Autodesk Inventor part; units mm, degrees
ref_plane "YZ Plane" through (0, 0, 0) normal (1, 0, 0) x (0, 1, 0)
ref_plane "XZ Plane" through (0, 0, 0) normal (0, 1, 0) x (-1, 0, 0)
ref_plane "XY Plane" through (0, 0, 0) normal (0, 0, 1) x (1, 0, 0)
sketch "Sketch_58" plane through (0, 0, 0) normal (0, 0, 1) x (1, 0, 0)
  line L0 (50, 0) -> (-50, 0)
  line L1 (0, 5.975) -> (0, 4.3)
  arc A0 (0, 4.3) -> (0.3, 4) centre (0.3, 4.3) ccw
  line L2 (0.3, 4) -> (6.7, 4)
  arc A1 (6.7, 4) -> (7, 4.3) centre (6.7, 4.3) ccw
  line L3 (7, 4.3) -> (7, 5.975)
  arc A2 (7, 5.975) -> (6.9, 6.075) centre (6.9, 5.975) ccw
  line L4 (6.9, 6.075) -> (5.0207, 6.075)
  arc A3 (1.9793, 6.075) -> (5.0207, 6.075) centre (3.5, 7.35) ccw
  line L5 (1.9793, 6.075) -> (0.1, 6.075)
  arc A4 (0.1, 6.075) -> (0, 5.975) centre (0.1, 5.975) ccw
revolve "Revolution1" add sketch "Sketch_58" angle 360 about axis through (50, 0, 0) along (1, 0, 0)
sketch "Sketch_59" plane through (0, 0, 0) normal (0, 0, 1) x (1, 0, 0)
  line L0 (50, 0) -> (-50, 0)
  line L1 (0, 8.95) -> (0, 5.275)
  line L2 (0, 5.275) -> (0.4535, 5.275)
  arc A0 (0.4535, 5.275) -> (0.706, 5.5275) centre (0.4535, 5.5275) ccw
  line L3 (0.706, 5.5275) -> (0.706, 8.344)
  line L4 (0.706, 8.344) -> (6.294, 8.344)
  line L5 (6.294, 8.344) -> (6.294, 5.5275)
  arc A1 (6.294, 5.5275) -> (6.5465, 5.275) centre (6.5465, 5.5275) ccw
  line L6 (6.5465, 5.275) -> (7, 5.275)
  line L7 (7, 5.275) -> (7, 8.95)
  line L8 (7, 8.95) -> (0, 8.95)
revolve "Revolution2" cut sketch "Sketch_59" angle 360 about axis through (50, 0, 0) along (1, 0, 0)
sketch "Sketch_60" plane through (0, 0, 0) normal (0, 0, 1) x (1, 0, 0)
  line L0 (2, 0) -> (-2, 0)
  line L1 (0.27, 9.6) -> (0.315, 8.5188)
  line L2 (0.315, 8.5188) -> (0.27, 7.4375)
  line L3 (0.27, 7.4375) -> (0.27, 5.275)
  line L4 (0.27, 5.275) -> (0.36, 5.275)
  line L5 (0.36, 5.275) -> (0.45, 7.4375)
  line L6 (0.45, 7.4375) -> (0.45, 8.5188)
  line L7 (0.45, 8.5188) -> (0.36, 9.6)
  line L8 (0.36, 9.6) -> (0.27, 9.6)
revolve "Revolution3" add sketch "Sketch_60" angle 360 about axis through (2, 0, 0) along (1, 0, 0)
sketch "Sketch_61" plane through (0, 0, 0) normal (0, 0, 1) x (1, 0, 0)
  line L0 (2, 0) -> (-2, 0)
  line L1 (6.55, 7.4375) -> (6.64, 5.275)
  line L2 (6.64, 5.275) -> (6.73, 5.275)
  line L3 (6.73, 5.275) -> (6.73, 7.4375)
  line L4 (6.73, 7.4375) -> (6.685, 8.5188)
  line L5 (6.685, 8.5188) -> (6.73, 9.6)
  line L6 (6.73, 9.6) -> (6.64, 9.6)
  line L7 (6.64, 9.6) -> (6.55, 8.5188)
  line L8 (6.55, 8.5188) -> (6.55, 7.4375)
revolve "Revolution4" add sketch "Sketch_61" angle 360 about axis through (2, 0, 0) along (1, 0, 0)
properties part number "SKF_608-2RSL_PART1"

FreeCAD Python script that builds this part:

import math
import FreeCAD as App
import Part
import Sketcher

V = App.Vector
Q = App.Units.Quantity


def add_polygon(sketch, points):
    """Adds a closed chain of lines whose ends are joined by coincident constraints."""
    first, n = sketch.GeometryCount, len(points)
    for a, b in zip(points, points[1:] + points[:1]):
        sketch.addGeometry(Part.LineSegment(App.Vector(*a, 0), App.Vector(*b, 0)), False)
    for i in range(n):
        sketch.addConstraint(Sketcher.Constraint("Coincident", first + i, 2, first + (i + 1) % n, 1))

doc = App.newDocument("Part")
params = doc.addObject("Spreadsheet::Sheet", "Params")
for row, (alias, value) in enumerate([
    ("sketch1_radius", "0.1 mm"),
    ("sketch1_radius2", "0.3 mm"),
    ("sketch1_width", "6.4 mm"),
    ("revolution_angle", "360 deg"),
    ("sketch2_width", "7 mm"),
    ("groove_angle", "360 deg"),
    ("sketch3_width", "0.09 mm"),
    ("revolution2_angle", "360 deg"),
    ("sketch4_width", "0.09 mm"),
    ("revolution3_angle", "360 deg"),
], start=1):
    params.set(f"A{row}", alias)
    params.set(f"B{row}", "=" + value)
    params.setAlias(f"B{row}", alias)

body = doc.addObject("PartDesign::Body", "Body")

# Sketch on XY plane
sketch1 = body.newObject("Sketcher::SketchObject", "Sketch")
sketch1.AttachmentSupport = (doc.getObject("XY_Plane"), [""])
sketch1.MapMode = "FlatFace"
sketch1.addGeometry([
    Part.ArcOfCircle(Part.Circle(V(0.1, 5.97, 0), V(0, 0, 1), 0.1), math.radians(90), math.radians(180)),  # 0
    Part.LineSegment(V(0, 5.97, 0), V(0, 4.3, 0)),  # 1
    Part.ArcOfCircle(Part.Circle(V(0.3, 4.3, 0), V(0, 0, 1), 0.3), math.radians(180), math.radians(270)),  # 2
    Part.LineSegment(V(0.3, 4, 0), V(6.7, 4, 0)),  # 3
    Part.ArcOfCircle(Part.Circle(V(6.7, 4.3, 0), V(0, 0, 1), 0.3), math.radians(-90), math.radians(0)),  # 4
    Part.LineSegment(V(7, 4.3, 0), V(7, 5.97, 0)),  # 5
    Part.ArcOfCircle(Part.Circle(V(6.9, 5.97, 0), V(0, 0, 1), 0.1), math.radians(0), math.radians(90)),  # 6
    Part.LineSegment(V(6.9, 6.08, 0), V(5.02, 6.08, 0)),  # 7
    Part.ArcOfCircle(Part.Circle(V(3.5, 7.35, 0), V(0, 0, 1), 1.98), math.radians(-140), math.radians(-40)),  # 8
    Part.LineSegment(V(1.98, 6.08, 0), V(0.1, 6.08, 0)),  # 9
], False)
sketch1.addConstraint([
    Sketcher.Constraint("Tangent", 0, 2, 1, 1),
    Sketcher.Constraint("Tangent", 1, 2, 2, 1),
    Sketcher.Constraint("Tangent", 2, 2, 3, 1),
    Sketcher.Constraint("Tangent", 3, 2, 4, 1),
    Sketcher.Constraint("Tangent", 4, 2, 5, 1),
    Sketcher.Constraint("Tangent", 5, 2, 6, 1),
    Sketcher.Constraint("Tangent", 6, 2, 7, 1),
    Sketcher.Constraint("Coincident", 7, 2, 8, 2),
    Sketcher.Constraint("Coincident", 8, 1, 9, 1),
    Sketcher.Constraint("Tangent", 9, 2, 0, 1),
    Sketcher.Constraint("Vertical", 1),
    Sketcher.Constraint("Horizontal", 3),
    Sketcher.Constraint("Vertical", 5),
    Sketcher.Constraint("Horizontal", 7),
    Sketcher.Constraint("Horizontal", 9),
    Sketcher.Constraint("Equal", 2, 4),
    Sketcher.Constraint("Equal", 0, 6),
    Sketcher.Constraint("PointOnObject", 0, 2, -2),
    Sketcher.Constraint("Horizontal", 0, 3, 6, 3),
    Sketcher.Constraint("Equal", 7, 9),
    Sketcher.Constraint("Radius", 0, Q("0.1 mm")),
    Sketcher.Constraint("Radius", 2, Q("0.3 mm")),
    Sketcher.Constraint("DistanceX", 3, 1, 3, 2, Q("6.4 mm")),
    Sketcher.Constraint("DistanceY", -1, 1, 2, 2, Q("4 mm")),
    Sketcher.Constraint("Radius", 8, Q("1.9845 mm")),
    Sketcher.Constraint("DistanceY", 1, 2, 1, 1, Q("1.675 mm")),
    Sketcher.Constraint("DistanceY", -1, 1, 8, 3, Q("7.35 mm")),
])
sketch1.setExpression("Constraints[20]", "Params.sketch1_radius")
sketch1.setExpression("Constraints[21]", "Params.sketch1_radius2")
sketch1.setExpression("Constraints[22]", "Params.sketch1_width")
revolution = body.newObject("PartDesign::Revolution", "Revolution")
revolution.Profile = sketch1
revolution.ReferenceAxis = (sketch1, ["H_Axis"])
revolution.setExpression("Angle", "Params.revolution_angle")

# Sketch on XY plane
sketch2 = body.newObject("Sketcher::SketchObject", "Sketch001")
sketch2.AttachmentSupport = (doc.getObject("XY_Plane"), [""])
sketch2.MapMode = "FlatFace"
sketch2.addGeometry([
    Part.LineSegment(V(7, 8.95, 0), V(0, 8.95, 0)),  # 0
    Part.LineSegment(V(0, 8.95, 0), V(0, 5.28, 0)),  # 1
    Part.LineSegment(V(0, 5.28, 0), V(0.45, 5.28, 0)),  # 2
    Part.ArcOfCircle(Part.Circle(V(0.45, 5.53, 0), V(0, 0, 1), 0.25), math.radians(-90), math.radians(0)),  # 3
    Part.LineSegment(V(0.71, 5.53, 0), V(0.71, 8.34, 0)),  # 4
    Part.LineSegment(V(0.71, 8.34, 0), V(6.29, 8.34, 0)),  # 5
    Part.LineSegment(V(6.29, 8.34, 0), V(6.29, 5.53, 0)),  # 6
    Part.ArcOfCircle(Part.Circle(V(6.55, 5.53, 0), V(0, 0, 1), 0.25), math.radians(180), math.radians(270)),  # 7
    Part.LineSegment(V(6.55, 5.28, 0), V(7, 5.28, 0)),  # 8
    Part.LineSegment(V(7, 5.28, 0), V(7, 8.95, 0)),  # 9
], False)
sketch2.addConstraint([
    Sketcher.Constraint("Coincident", 0, 2, 1, 1),
    Sketcher.Constraint("Coincident", 1, 2, 2, 1),
    Sketcher.Constraint("Tangent", 2, 2, 3, 1),
    Sketcher.Constraint("Tangent", 3, 2, 4, 1),
    Sketcher.Constraint("Coincident", 4, 2, 5, 1),
    Sketcher.Constraint("Coincident", 5, 2, 6, 1),
    Sketcher.Constraint("Tangent", 6, 2, 7, 1),
    Sketcher.Constraint("Tangent", 7, 2, 8, 1),
    Sketcher.Constraint("Coincident", 8, 2, 9, 1),
    Sketcher.Constraint("Coincident", 9, 2, 0, 1),
    Sketcher.Constraint("Horizontal", 0),
    Sketcher.Constraint("Vertical", 1),
    Sketcher.Constraint("Horizontal", 2),
    Sketcher.Constraint("Vertical", 4),
    Sketcher.Constraint("Horizontal", 5),
    Sketcher.Constraint("Vertical", 6),
    Sketcher.Constraint("Horizontal", 8),
    Sketcher.Constraint("Vertical", 9),
    Sketcher.Constraint("Equal", 3, 7),
    Sketcher.Constraint("PointOnObject", 0, 2, -2),
    Sketcher.Constraint("Horizontal", 3, 3, 7, 3),
    Sketcher.Constraint("Equal", 2, 8),
    Sketcher.Constraint("DistanceX", 0, 2, 0, 1, Q("7 mm")),
    Sketcher.Constraint("Radius", 3, Q("0.2525 mm")),
    Sketcher.Constraint("DistanceX", 5, 1, 5, 2, Q("5.588 mm")),
    Sketcher.Constraint("DistanceY", 1, 2, 1, 1, Q("3.675 mm")),
    Sketcher.Constraint("DistanceY", -1, 1, 0, 2, Q("8.95 mm")),
    Sketcher.Constraint("DistanceY", 4, 1, 4, 2, Q("2.8165 mm")),
])
sketch2.setExpression("Constraints[22]", "Params.sketch2_width")
groove = body.newObject("PartDesign::Groove", "Groove")
groove.Profile = sketch2
groove.ReferenceAxis = (sketch2, ["H_Axis"])
groove.setExpression("Angle", "Params.groove_angle")

# Sketch on XY plane
sketch3 = body.newObject("Sketcher::SketchObject", "Sketch002")
sketch3.AttachmentSupport = (doc.getObject("XY_Plane"), [""])
sketch3.MapMode = "FlatFace"
add_polygon(sketch3, [(0.36, 9.6), (0.27, 9.6), (0.32, 8.52), (0.27, 7.44), (0.27, 5.28), (0.36, 5.28), (0.45, 7.44), (0.45, 8.52)])  # lines 0-7
sketch3.addConstraint([
    Sketcher.Constraint("Horizontal", 0),
    Sketcher.Constraint("Vertical", 3),
    Sketcher.Constraint("Horizontal", 4),
    Sketcher.Constraint("Vertical", 6),
    Sketcher.Constraint("Parallel", 2, 5),
    Sketcher.Constraint("Horizontal", 2, 2, 5, 2),
    Sketcher.Constraint("Horizontal", 1, 2, 6, 2),
    Sketcher.Constraint("Vertical", 0, 2, 2, 2),
    Sketcher.Constraint("Vertical", 4, 2, 7, 2),
    Sketcher.Constraint("Equal", 1, 2),
    Sketcher.Constraint("DistanceX", 0, 2, 0, 1, Q("0.09 mm")),
    Sketcher.Constraint("DistanceY", -1, 1, 0, 2, Q("9.6 mm")),
    Sketcher.Constraint("DistanceX", -1, 1, 0, 2, Q("0.27 mm")),
    Sketcher.Constraint("DistanceX", -1, 1, 5, 2, Q("0.45 mm")),
    Sketcher.Constraint("Distance", 7, Q("1.085 mm")),
    Sketcher.Constraint("DistanceY", 3, 2, 3, 1, Q("2.1625 mm")),
])
sketch3.setExpression("Constraints[18]", "Params.sketch3_width")
revolution2 = body.newObject("PartDesign::Revolution", "Revolution001")
revolution2.Profile = sketch3
revolution2.ReferenceAxis = (sketch3, ["H_Axis"])
revolution2.setExpression("Angle", "Params.revolution2_angle")

# Sketch on XY plane
sketch4 = body.newObject("Sketcher::SketchObject", "Sketch003")
sketch4.AttachmentSupport = (doc.getObject("XY_Plane"), [""])
sketch4.MapMode = "FlatFace"
add_polygon(sketch4, [(6.55, 8.52), (6.55, 7.44), (6.64, 5.28), (6.73, 5.28), (6.73, 7.44), (6.68, 8.52), (6.73, 9.6), (6.64, 9.6)])  # lines 0-7
sketch4.addConstraint([
    Sketcher.Constraint("Vertical", 0),
    Sketcher.Constraint("Horizontal", 2),
    Sketcher.Constraint("Vertical", 3),
    Sketcher.Constraint("Horizontal", 6),
    Sketcher.Constraint("Parallel", 1, 4),
    Sketcher.Constraint("Horizontal", 0, 2, 3, 2),
    Sketcher.Constraint("Horizontal", 4, 2, 7, 2),
    Sketcher.Constraint("Vertical", 3, 2, 5, 2),
    Sketcher.Constraint("Vertical", 1, 2, 6, 2),
    Sketcher.Constraint("Equal", 4, 5),
    Sketcher.Constraint("DistanceX", 2, 1, 2, 2, Q("0.09 mm")),
    Sketcher.Constraint("DistanceY", -1, 1, 5, 2, Q("9.6 mm")),
    Sketcher.Constraint("DistanceX", -1, 1, 0, 2, Q("6.55 mm")),
    Sketcher.Constraint("DistanceX", -1, 1, 1, 2, Q("6.64 mm")),
    Sketcher.Constraint("Distance", 7, Q("1.085 mm")),
    Sketcher.Constraint("DistanceY", 3, 1, 3, 2, Q("2.1625 mm")),
])
sketch4.setExpression("Constraints[18]", "Params.sketch4_width")
revolution3 = body.newObject("PartDesign::Revolution", "Revolution002")
revolution3.Profile = sketch4
revolution3.ReferenceAxis = (sketch4, ["H_Axis"])
revolution3.setExpression("Angle", "Params.revolution3_angle")

doc.recompute()
